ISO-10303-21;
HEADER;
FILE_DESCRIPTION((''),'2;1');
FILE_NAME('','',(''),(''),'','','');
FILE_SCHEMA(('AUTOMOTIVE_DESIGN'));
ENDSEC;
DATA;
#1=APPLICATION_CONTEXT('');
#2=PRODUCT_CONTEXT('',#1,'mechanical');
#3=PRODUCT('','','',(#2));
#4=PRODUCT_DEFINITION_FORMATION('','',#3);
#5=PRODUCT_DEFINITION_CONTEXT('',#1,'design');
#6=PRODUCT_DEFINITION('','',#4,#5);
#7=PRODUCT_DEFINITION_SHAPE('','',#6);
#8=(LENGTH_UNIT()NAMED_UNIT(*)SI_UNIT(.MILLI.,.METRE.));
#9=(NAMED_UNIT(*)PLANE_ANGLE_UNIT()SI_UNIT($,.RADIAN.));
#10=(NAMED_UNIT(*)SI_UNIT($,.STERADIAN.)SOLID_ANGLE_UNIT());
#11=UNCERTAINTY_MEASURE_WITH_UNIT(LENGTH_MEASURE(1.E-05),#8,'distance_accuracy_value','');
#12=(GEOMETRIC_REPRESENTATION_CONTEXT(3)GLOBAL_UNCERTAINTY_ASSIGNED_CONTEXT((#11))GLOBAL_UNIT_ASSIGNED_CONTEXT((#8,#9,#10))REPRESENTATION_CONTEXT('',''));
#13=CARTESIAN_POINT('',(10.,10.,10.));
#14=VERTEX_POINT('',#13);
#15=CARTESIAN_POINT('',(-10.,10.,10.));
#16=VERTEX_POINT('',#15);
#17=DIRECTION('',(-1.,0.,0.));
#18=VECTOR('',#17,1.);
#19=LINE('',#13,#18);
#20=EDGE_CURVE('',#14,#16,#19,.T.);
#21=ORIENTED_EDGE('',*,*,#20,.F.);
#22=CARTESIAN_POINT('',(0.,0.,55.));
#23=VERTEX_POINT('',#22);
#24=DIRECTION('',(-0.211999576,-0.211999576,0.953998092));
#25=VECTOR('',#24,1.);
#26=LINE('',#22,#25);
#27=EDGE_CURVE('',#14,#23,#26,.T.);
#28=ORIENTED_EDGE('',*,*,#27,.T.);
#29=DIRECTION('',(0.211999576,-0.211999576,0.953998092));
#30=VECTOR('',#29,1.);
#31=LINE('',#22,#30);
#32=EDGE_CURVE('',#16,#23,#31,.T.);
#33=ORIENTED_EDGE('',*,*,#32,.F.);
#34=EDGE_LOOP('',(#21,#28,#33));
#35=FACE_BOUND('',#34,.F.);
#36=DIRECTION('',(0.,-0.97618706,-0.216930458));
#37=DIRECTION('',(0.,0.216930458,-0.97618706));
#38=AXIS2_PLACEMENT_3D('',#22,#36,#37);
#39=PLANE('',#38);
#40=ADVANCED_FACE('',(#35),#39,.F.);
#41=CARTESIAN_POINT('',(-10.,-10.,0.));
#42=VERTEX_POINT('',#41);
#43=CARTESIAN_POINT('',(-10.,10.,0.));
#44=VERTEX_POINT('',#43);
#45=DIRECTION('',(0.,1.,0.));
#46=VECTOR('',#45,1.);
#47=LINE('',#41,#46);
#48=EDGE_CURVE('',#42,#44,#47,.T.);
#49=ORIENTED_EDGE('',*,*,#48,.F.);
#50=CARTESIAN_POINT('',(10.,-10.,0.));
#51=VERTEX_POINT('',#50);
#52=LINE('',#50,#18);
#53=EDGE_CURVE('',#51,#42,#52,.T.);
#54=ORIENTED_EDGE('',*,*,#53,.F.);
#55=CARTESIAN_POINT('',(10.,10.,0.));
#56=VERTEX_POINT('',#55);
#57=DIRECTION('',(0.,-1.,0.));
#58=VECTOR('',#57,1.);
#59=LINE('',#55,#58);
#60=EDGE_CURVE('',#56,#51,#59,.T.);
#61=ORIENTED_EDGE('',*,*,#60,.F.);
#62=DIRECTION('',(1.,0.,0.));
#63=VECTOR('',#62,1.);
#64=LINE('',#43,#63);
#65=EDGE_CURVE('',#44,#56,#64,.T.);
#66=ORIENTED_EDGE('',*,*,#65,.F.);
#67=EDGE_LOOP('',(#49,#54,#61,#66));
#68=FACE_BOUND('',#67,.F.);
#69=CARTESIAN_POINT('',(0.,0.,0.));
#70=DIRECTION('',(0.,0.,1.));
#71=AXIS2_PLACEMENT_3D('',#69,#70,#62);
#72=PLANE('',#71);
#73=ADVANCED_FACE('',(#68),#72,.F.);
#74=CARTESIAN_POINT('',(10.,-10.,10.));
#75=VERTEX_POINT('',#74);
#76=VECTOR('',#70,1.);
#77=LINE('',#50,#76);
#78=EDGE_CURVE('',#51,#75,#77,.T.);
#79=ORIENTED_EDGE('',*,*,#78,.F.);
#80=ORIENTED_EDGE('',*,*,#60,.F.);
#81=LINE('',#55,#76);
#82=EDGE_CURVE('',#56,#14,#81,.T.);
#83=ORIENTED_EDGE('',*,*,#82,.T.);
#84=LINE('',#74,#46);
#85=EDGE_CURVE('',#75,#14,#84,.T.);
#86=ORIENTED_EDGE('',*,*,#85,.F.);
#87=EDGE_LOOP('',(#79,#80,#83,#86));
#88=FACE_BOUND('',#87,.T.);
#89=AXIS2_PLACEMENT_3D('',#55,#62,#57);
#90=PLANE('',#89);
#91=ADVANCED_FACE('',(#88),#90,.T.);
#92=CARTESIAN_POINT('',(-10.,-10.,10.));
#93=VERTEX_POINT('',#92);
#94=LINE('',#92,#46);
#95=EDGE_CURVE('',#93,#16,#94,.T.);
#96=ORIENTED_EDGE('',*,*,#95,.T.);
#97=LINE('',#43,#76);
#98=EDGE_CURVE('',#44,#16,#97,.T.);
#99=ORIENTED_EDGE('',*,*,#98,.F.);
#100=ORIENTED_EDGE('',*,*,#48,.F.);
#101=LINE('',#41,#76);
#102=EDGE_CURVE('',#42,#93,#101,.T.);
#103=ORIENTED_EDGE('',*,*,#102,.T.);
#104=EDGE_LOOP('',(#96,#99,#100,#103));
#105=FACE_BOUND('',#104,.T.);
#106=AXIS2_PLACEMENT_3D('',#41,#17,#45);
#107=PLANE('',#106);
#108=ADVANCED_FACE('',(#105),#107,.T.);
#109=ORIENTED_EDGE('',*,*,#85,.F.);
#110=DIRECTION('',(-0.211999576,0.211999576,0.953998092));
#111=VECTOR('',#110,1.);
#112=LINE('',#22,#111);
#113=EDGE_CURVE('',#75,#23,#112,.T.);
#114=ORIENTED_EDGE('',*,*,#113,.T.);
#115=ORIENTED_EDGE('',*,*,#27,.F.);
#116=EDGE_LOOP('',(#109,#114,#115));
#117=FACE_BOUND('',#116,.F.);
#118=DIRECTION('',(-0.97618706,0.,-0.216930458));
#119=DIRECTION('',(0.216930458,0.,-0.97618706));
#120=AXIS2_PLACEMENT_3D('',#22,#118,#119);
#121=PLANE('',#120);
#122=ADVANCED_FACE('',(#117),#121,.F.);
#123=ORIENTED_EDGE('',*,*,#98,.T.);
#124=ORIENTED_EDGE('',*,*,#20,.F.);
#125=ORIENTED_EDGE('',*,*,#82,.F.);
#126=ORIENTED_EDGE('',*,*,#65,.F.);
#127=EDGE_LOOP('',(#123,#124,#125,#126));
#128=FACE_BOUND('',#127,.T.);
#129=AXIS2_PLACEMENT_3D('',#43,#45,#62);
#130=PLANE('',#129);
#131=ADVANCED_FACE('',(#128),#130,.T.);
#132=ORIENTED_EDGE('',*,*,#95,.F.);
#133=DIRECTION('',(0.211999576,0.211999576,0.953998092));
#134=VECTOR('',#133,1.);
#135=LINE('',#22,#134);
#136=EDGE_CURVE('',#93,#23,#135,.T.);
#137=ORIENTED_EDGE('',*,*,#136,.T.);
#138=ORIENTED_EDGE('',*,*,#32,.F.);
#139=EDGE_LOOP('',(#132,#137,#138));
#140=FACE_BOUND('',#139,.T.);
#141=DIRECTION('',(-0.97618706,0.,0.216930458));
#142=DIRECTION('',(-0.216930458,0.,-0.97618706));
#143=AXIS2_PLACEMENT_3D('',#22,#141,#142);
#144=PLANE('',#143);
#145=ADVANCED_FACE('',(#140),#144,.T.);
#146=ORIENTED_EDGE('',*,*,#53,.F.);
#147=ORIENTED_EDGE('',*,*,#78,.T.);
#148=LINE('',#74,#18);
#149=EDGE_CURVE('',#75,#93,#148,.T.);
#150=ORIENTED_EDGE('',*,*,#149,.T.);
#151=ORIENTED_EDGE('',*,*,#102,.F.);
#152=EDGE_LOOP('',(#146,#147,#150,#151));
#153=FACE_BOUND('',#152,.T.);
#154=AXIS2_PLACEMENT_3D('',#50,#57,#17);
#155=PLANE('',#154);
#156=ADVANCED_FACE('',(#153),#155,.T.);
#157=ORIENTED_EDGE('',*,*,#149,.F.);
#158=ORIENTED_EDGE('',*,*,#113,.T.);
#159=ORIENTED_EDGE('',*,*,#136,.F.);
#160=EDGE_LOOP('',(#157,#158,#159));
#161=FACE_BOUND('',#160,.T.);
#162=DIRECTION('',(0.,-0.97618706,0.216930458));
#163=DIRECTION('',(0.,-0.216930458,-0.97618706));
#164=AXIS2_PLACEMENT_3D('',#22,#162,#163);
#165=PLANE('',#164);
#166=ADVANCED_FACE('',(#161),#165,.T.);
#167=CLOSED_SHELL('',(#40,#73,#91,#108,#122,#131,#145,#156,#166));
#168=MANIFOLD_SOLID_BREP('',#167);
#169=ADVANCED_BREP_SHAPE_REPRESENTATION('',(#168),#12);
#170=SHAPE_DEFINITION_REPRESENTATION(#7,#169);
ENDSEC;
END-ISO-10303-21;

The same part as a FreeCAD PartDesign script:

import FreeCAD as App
import Part
import Sketcher

V = App.Vector
Q = App.Units.Quantity

doc = App.newDocument("Part")
body = doc.addObject("PartDesign::Body", "Body")

sketch1 = doc.addObject("Sketcher::SketchObject", "Sketch")
body.addObject(sketch1)
sketch1.AttachmentSupport = (doc.XY_Plane, [""])
sketch1.MapMode = "FlatFace"
sketch1.addGeometry(Part.LineSegment(V(10, 10, 0), V(-10, 10, 0)), False)
sketch1.addGeometry(Part.LineSegment(V(-10, 10, 0), V(-10, -10, 0)), False)
sketch1.addGeometry(Part.LineSegment(V(-10, -10, 0), V(10, -10, 0)), False)
sketch1.addGeometry(Part.LineSegment(V(10, -10, 0), V(10, 10, 0)), False)
sketch1.addConstraint(Sketcher.Constraint("Coincident", 0, 2, 1, 1))
sketch1.addConstraint(Sketcher.Constraint("Coincident", 1, 2, 2, 1))
sketch1.addConstraint(Sketcher.Constraint("Coincident", 2, 2, 3, 1))
sketch1.addConstraint(Sketcher.Constraint("Coincident", 3, 2, 0, 1))
sketch1.addConstraint(Sketcher.Constraint("Horizontal", 0))
sketch1.addConstraint(Sketcher.Constraint("Vertical", 1))
sketch1.addConstraint(Sketcher.Constraint("Horizontal", 2))
sketch1.addConstraint(Sketcher.Constraint("Vertical", 3))
sketch1.addConstraint(Sketcher.Constraint("Symmetric", 0, 2, 2, 2, -1, 1))
sketch1.addConstraint(Sketcher.Constraint("Equal", 2, 1))
sketch1.addConstraint(Sketcher.Constraint("DistanceX", 0, 2, 0, 1, Q("20 mm")))
pad1 = doc.addObject("PartDesign::Pad", "Pad")
body.addObject(pad1)
pad1.Profile = sketch1
pad1.Length = 55

sketch2 = doc.addObject("Sketcher::SketchObject", "Sketch001")
body.addObject(sketch2)
sketch2.AttachmentSupport = (doc.XZ_Plane, [""])
sketch2.MapMode = "FlatFace"
sketch2.addGeometry(Part.LineSegment(V(10, 55, 0), V(10, 10, 0)), False)
sketch2.addGeometry(Part.LineSegment(V(10, 10, 0), V(0, 55, 0)), False)
sketch2.addGeometry(Part.LineSegment(V(0, 55, 0), V(10, 55, 0)), False)
sketch2.addGeometry(Part.LineSegment(V(0, 55, 0), V(-10, 10, 0)), False)
sketch2.addGeometry(Part.LineSegment(V(-10, 10, 0), V(-10, 55, 0)), False)
sketch2.addGeometry(Part.LineSegment(V(-10, 55, 0), V(0, 55, 0)), False)
sketch2.addConstraint(Sketcher.Constraint("Coincident", 0, 2, 1, 1))
sketch2.addConstraint(Sketcher.Constraint("Coincident", 1, 2, 2, 1))
sketch2.addConstraint(Sketcher.Constraint("Coincident", 2, 2, 0, 1))
sketch2.addConstraint(Sketcher.Constraint("Coincident", 3, 2, 4, 1))
sketch2.addConstraint(Sketcher.Constraint("Coincident", 4, 2, 5, 1))
sketch2.addConstraint(Sketcher.Constraint("Coincident", 5, 2, 3, 1))
sketch2.addConstraint(Sketcher.Constraint("Vertical", 0))
sketch2.addConstraint(Sketcher.Constraint("Horizontal", 2))
sketch2.addConstraint(Sketcher.Constraint("Vertical", 4))
sketch2.addConstraint(Sketcher.Constraint("Horizontal", 5))
sketch2.addConstraint(Sketcher.Constraint("Coincident", 5, 2, 1, 2))
sketch2.addConstraint(Sketcher.Constraint("Symmetric", 0, 2, 3, 2, -2))
sketch2.addConstraint(Sketcher.Constraint("PointOnObject", 1, 2, -2))
sketch2.addConstraint(Sketcher.Constraint("DistanceX", 2, 1, 2, 2, Q("10 mm")))
sketch2.addConstraint(Sketcher.Constraint("DistanceY", -1, 1, 0, 2, Q("10 mm")))
sketch2.addConstraint(Sketcher.Constraint("DistanceY", 0, 2, 0, 1, Q("45 mm")))
pocket1 = doc.addObject("PartDesign::Pocket", "Pocket")
body.addObject(pocket1)
pocket1.Profile = sketch2
pocket1.Length = 20
pocket1.Midplane = True
doc.recompute()

polarpattern = doc.addObject("PartDesign::PolarPattern", "PolarPattern")
body.addObject(polarpattern)
polarpattern.Originals = [pocket1]
polarpattern.Axis = (doc.Z_Axis, [""])
polarpattern.Angle = 90
polarpattern.Occurrences = 2
body.Tip = polarpattern

doc.recompute()
